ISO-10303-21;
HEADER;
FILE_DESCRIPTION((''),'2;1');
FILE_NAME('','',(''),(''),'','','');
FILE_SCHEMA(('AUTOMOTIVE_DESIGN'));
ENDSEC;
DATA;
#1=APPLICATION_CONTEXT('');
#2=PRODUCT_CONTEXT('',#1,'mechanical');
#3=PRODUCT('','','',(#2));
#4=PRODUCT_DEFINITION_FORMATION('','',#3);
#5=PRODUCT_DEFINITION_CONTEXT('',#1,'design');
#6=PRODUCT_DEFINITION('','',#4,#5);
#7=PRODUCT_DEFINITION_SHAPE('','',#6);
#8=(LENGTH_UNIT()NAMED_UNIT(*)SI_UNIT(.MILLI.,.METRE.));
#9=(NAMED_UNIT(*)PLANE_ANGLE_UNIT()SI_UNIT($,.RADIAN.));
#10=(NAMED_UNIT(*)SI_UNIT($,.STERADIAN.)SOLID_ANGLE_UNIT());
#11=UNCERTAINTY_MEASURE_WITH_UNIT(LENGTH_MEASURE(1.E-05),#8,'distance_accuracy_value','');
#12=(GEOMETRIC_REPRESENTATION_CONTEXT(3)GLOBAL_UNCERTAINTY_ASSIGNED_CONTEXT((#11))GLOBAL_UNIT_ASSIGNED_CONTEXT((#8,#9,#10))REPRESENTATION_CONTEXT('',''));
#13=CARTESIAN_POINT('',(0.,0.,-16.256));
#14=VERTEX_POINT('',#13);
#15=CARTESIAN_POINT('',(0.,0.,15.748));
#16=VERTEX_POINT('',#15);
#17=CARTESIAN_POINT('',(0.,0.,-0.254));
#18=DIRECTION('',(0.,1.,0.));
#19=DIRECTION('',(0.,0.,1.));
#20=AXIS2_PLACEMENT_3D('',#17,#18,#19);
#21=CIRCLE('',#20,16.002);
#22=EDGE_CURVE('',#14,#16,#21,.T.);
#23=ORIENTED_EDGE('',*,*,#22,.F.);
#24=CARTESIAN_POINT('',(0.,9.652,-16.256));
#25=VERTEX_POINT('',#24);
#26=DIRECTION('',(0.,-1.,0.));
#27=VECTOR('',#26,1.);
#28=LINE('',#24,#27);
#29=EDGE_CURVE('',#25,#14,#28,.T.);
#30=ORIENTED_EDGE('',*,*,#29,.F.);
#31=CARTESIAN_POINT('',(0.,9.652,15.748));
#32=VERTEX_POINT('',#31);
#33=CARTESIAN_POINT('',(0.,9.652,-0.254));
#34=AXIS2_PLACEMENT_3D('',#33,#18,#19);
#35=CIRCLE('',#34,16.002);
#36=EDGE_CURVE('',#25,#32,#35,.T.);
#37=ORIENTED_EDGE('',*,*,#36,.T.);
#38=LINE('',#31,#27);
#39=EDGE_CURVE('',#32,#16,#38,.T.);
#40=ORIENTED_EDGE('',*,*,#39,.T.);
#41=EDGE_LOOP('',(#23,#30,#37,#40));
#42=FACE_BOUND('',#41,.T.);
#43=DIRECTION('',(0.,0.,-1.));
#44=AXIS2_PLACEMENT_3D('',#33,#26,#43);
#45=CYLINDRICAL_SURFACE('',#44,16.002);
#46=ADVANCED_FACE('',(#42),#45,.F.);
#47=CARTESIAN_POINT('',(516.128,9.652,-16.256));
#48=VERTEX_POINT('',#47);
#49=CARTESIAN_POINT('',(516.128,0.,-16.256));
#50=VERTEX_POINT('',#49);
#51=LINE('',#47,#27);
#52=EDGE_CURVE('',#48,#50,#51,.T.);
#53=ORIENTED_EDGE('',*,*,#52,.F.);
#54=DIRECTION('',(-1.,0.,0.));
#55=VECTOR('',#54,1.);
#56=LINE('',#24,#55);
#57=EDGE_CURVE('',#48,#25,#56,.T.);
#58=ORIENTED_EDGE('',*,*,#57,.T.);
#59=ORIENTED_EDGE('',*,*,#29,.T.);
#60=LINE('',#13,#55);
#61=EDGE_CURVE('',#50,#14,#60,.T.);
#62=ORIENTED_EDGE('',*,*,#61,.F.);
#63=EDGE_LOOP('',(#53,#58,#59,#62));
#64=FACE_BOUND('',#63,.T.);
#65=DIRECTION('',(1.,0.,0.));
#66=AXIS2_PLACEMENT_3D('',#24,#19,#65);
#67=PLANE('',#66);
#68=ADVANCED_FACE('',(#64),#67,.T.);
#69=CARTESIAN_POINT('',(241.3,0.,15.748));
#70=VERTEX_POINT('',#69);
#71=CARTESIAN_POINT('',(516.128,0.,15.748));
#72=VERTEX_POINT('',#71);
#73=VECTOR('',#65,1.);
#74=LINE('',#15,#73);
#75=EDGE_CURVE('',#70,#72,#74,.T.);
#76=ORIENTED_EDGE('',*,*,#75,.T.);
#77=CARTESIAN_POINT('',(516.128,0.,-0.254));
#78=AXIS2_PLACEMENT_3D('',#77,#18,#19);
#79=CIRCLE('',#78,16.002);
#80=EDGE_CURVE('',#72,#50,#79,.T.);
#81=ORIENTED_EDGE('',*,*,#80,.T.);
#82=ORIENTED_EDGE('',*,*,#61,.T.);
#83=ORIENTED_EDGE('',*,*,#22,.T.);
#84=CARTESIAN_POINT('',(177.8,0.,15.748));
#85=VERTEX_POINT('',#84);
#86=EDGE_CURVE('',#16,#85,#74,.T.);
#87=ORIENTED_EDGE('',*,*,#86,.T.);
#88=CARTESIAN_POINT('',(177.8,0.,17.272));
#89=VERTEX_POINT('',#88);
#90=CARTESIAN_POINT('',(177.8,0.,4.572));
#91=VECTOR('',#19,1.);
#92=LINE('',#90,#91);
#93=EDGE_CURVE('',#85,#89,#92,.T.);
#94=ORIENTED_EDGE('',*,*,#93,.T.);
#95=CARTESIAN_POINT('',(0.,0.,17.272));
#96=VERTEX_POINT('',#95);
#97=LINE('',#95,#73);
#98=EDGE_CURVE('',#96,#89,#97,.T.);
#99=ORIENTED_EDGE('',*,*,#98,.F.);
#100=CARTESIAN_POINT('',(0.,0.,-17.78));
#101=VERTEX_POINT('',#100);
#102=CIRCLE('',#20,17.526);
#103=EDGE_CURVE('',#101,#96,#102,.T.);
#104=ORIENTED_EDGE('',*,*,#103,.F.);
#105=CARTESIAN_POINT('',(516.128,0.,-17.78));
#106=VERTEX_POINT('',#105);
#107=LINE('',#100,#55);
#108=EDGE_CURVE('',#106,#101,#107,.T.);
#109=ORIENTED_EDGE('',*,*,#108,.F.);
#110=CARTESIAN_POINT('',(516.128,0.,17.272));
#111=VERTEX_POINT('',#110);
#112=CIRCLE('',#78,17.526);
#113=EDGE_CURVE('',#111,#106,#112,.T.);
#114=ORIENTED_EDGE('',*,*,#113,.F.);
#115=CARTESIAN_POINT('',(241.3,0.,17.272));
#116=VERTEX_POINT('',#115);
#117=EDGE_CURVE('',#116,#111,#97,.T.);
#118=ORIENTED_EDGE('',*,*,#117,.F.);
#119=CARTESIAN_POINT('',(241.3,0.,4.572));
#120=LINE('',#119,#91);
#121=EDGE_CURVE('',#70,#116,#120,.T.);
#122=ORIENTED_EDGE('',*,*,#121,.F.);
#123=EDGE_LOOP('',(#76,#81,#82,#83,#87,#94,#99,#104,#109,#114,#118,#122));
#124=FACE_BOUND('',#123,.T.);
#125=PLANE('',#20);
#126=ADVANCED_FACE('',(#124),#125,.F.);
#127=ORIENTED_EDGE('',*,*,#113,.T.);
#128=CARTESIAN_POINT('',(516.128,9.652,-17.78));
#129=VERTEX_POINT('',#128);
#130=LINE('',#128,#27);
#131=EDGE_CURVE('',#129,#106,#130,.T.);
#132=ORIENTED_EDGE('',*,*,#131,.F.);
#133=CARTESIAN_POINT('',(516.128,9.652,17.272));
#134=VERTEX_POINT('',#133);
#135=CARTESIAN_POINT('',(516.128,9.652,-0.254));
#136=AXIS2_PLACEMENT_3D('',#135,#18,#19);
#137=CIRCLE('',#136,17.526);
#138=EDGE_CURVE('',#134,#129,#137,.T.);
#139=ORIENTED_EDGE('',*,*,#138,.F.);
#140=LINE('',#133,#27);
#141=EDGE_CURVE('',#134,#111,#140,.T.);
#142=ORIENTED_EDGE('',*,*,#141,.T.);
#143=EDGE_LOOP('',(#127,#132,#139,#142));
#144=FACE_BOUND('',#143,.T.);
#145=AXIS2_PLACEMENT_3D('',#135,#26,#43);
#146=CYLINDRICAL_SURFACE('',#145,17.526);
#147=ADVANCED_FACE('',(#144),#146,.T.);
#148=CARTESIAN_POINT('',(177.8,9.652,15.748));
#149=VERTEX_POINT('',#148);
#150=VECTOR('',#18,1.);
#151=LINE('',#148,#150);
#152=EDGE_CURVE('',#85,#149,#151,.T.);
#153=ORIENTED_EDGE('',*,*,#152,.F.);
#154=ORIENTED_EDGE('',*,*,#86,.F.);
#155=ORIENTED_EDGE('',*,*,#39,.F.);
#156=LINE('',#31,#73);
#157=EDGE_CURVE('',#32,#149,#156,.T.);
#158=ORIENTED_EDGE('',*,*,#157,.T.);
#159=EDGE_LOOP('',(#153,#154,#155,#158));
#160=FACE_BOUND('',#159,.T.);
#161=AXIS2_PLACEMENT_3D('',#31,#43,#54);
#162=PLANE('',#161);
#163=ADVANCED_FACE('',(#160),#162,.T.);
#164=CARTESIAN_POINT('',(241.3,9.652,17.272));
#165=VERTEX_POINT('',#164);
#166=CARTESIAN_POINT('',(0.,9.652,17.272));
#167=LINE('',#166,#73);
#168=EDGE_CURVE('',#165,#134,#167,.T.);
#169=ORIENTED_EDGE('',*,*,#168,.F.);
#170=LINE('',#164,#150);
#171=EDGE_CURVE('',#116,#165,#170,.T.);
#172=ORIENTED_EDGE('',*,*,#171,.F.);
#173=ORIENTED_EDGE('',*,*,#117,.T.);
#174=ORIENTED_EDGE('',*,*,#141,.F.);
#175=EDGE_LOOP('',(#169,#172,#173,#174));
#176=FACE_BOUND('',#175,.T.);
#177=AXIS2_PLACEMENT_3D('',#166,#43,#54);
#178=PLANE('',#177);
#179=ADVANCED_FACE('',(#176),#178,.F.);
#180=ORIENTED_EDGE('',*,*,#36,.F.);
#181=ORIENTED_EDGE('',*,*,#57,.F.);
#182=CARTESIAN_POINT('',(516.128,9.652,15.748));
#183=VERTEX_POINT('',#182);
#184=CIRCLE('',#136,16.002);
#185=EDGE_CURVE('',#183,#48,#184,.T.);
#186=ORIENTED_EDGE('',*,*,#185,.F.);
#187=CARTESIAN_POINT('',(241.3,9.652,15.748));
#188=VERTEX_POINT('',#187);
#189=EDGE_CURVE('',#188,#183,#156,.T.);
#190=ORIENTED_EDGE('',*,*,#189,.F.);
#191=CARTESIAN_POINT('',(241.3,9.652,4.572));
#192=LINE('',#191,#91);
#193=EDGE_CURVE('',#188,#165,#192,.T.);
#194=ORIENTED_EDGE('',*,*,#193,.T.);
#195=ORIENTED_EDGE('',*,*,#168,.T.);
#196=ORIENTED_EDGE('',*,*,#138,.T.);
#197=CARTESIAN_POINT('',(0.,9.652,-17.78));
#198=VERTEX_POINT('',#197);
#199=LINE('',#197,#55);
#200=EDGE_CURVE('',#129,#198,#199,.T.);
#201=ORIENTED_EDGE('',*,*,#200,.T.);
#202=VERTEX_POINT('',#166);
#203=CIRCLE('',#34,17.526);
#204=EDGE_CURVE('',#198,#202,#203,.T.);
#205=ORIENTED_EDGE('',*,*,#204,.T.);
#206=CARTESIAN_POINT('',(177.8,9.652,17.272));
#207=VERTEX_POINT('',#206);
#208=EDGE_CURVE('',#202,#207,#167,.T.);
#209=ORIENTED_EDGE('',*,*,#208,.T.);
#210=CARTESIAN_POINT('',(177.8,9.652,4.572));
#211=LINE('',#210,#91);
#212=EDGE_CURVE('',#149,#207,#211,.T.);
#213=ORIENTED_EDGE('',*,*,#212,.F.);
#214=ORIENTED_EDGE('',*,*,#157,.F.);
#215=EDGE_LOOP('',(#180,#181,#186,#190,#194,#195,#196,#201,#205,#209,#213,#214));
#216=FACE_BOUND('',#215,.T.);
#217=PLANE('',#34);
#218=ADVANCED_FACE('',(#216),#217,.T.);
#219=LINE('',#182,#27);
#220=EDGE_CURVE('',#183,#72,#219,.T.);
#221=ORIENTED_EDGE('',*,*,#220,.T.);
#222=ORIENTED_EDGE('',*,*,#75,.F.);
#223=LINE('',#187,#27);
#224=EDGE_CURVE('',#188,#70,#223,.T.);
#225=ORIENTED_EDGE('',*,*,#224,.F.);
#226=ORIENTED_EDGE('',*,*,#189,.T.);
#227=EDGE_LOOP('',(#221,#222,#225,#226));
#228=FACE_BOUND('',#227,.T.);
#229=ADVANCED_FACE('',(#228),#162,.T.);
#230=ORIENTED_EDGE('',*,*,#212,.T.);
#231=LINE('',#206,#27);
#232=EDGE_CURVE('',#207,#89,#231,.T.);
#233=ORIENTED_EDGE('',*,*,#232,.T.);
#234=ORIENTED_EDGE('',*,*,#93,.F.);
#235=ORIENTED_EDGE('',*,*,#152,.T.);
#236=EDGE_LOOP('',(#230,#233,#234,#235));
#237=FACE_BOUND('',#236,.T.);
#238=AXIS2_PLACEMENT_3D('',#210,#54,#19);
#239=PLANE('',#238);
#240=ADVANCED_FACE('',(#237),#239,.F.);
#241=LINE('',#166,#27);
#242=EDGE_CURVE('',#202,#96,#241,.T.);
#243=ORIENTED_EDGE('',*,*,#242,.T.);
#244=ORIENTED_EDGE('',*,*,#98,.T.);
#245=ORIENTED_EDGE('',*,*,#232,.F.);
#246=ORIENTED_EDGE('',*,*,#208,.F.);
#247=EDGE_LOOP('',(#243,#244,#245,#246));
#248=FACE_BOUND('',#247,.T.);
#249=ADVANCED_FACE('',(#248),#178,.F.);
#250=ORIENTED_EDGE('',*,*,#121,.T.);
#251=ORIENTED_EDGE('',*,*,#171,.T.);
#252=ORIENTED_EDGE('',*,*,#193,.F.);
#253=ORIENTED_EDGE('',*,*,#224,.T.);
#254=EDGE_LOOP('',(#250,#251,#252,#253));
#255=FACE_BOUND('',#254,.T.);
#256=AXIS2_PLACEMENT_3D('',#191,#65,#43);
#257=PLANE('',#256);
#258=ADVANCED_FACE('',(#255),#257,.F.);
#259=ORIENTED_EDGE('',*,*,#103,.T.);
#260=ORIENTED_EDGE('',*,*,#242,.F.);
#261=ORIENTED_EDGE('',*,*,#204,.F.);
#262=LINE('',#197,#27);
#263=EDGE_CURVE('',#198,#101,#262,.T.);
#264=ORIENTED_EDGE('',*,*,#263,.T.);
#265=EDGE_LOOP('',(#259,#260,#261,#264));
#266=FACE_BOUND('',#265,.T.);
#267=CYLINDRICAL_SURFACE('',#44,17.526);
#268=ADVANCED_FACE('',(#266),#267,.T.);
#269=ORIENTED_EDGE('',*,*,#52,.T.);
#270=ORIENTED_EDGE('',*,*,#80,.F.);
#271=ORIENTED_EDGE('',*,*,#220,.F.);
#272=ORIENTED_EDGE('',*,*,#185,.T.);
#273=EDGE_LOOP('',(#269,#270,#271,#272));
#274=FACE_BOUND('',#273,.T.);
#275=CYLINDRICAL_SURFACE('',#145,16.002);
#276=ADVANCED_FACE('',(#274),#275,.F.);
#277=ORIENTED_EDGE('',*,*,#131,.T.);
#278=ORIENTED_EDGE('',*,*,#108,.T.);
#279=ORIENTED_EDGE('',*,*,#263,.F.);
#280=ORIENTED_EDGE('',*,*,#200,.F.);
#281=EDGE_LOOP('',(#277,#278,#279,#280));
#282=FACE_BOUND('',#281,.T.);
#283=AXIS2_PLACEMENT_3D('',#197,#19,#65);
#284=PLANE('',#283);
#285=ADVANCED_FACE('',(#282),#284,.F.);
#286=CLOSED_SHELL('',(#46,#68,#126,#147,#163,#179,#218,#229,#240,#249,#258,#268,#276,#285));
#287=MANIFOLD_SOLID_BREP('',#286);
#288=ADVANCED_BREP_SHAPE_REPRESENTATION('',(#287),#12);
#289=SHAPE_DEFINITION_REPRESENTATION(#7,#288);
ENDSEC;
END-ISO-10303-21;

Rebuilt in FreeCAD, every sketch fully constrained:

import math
import FreeCAD as App
import Part
import Sketcher
Q = App.Units.Quantity

doc = App.newDocument("Part")
body = doc.addObject("PartDesign::Body", "Body")

sketch1 = body.newObject("Sketcher::SketchObject", "Sketch")
sketch1.AttachmentSupport = (doc.getObject("XZ_Plane"), [""])
sketch1.MapMode = "FlatFace"
sketch1.addGeometry([
    Part.LineSegment(App.Vector(516, -18, 0), App.Vector(0, -18, 0)),
    Part.ArcOfCircle(Part.Circle(App.Vector(0, 0, 0), App.Vector(0, 0, 1), 18), math.radians(90), math.radians(270)),
    Part.LineSegment(App.Vector(0, 17, 0), App.Vector(516, 17, 0)),
    Part.ArcOfCircle(Part.Circle(App.Vector(516, 0, 0), App.Vector(0, 0, 1), 18), math.radians(-90), math.radians(90)),
    Part.LineSegment(App.Vector(0, -16, 0), App.Vector(516, -16, 0)),
    Part.ArcOfCircle(Part.Circle(App.Vector(516, 0, 0), App.Vector(0, 0, 1), 16), math.radians(-90), math.radians(90)),
    Part.LineSegment(App.Vector(516, 16, 0), App.Vector(0, 16, 0)),
    Part.ArcOfCircle(Part.Circle(App.Vector(0, 0, 0), App.Vector(0, 0, 1), 16), math.radians(90), math.radians(270)),
], False)
sketch1.addConstraint([
    Sketcher.Constraint("Tangent", 0, 2, 1, 2),
    Sketcher.Constraint("Tangent", 1, 1, 2, 1),
    Sketcher.Constraint("Tangent", 2, 2, 3, 2),
    Sketcher.Constraint("Tangent", 3, 1, 0, 1),
    Sketcher.Constraint("Tangent", 4, 2, 5, 1),
    Sketcher.Constraint("Tangent", 5, 2, 6, 1),
    Sketcher.Constraint("Tangent", 6, 2, 7, 1),
    Sketcher.Constraint("Tangent", 7, 2, 4, 1),
    Sketcher.Constraint("Horizontal", 0),
    Sketcher.Constraint("Horizontal", 2),
    Sketcher.Constraint("Horizontal", 4),
    Sketcher.Constraint("Horizontal", 6),
    Sketcher.Constraint("Coincident", 5, 3, 3, 3),
    Sketcher.Constraint("PointOnObject", 1, 3, -2),
    Sketcher.Constraint("PointOnObject", 7, 3, -2),
    Sketcher.Constraint("Radius", 1, Q("0.69 in")),
    Sketcher.Constraint("Radius", 5, Q("0.63 in")),
    Sketcher.Constraint("DistanceX", 0, 2, 0, 1, Q("20.32 in")),
    Sketcher.Constraint("DistanceY", 0, 2, -1, 1, Q("0.7 in")),
])
pad1 = body.newObject("PartDesign::Pad", "Pad")
pad1.Profile = sketch1
pad1.Length = Q("0.38 in")
pad1.Reversed = True

sketch2 = body.newObject("Sketcher::SketchObject", "Sketch001")
sketch2.AttachmentSupport = (doc.getObject("XY_Plane"), [""])
sketch2.MapMode = "FlatFace"
sketch2.AttachmentOffset = App.Placement(App.Vector(0, 0, 0.68 * 25.4), App.Rotation())
sketch2.addGeometry([
    Part.LineSegment(App.Vector(178, 10, 0), App.Vector(178, 0, 0)),
    Part.LineSegment(App.Vector(178, 0, 0), App.Vector(241, 0, 0)),
    Part.LineSegment(App.Vector(241, 0, 0), App.Vector(241, 10, 0)),
    Part.LineSegment(App.Vector(241, 10, 0), App.Vector(178, 10, 0)),
], False)
sketch2.addConstraint([
    Sketcher.Constraint("Coincident", 0, 2, 1, 1),
    Sketcher.Constraint("Coincident", 1, 2, 2, 1),
    Sketcher.Constraint("Coincident", 2, 2, 3, 1),
    Sketcher.Constraint("Coincident", 3, 2, 0, 1),
    Sketcher.Constraint("Vertical", 0),
    Sketcher.Constraint("Horizontal", 1),
    Sketcher.Constraint("Vertical", 2),
    Sketcher.Constraint("Horizontal", 3),
    Sketcher.Constraint("PointOnObject", 0, 2, -1),
    Sketcher.Constraint("DistanceX", 1, 1, 1, 2, Q("2.5 in")),
    Sketcher.Constraint("DistanceX", -1, 1, 0, 2, Q("7 in")),
    Sketcher.Constraint("DistanceY", 0, 2, 0, 1, Q("0.38 in")),
])
pocket1 = body.newObject("PartDesign::Pocket", "Pocket")
pocket1.Profile = sketch2
pocket1.Length = Q("0.5 in")

doc.recompute()
